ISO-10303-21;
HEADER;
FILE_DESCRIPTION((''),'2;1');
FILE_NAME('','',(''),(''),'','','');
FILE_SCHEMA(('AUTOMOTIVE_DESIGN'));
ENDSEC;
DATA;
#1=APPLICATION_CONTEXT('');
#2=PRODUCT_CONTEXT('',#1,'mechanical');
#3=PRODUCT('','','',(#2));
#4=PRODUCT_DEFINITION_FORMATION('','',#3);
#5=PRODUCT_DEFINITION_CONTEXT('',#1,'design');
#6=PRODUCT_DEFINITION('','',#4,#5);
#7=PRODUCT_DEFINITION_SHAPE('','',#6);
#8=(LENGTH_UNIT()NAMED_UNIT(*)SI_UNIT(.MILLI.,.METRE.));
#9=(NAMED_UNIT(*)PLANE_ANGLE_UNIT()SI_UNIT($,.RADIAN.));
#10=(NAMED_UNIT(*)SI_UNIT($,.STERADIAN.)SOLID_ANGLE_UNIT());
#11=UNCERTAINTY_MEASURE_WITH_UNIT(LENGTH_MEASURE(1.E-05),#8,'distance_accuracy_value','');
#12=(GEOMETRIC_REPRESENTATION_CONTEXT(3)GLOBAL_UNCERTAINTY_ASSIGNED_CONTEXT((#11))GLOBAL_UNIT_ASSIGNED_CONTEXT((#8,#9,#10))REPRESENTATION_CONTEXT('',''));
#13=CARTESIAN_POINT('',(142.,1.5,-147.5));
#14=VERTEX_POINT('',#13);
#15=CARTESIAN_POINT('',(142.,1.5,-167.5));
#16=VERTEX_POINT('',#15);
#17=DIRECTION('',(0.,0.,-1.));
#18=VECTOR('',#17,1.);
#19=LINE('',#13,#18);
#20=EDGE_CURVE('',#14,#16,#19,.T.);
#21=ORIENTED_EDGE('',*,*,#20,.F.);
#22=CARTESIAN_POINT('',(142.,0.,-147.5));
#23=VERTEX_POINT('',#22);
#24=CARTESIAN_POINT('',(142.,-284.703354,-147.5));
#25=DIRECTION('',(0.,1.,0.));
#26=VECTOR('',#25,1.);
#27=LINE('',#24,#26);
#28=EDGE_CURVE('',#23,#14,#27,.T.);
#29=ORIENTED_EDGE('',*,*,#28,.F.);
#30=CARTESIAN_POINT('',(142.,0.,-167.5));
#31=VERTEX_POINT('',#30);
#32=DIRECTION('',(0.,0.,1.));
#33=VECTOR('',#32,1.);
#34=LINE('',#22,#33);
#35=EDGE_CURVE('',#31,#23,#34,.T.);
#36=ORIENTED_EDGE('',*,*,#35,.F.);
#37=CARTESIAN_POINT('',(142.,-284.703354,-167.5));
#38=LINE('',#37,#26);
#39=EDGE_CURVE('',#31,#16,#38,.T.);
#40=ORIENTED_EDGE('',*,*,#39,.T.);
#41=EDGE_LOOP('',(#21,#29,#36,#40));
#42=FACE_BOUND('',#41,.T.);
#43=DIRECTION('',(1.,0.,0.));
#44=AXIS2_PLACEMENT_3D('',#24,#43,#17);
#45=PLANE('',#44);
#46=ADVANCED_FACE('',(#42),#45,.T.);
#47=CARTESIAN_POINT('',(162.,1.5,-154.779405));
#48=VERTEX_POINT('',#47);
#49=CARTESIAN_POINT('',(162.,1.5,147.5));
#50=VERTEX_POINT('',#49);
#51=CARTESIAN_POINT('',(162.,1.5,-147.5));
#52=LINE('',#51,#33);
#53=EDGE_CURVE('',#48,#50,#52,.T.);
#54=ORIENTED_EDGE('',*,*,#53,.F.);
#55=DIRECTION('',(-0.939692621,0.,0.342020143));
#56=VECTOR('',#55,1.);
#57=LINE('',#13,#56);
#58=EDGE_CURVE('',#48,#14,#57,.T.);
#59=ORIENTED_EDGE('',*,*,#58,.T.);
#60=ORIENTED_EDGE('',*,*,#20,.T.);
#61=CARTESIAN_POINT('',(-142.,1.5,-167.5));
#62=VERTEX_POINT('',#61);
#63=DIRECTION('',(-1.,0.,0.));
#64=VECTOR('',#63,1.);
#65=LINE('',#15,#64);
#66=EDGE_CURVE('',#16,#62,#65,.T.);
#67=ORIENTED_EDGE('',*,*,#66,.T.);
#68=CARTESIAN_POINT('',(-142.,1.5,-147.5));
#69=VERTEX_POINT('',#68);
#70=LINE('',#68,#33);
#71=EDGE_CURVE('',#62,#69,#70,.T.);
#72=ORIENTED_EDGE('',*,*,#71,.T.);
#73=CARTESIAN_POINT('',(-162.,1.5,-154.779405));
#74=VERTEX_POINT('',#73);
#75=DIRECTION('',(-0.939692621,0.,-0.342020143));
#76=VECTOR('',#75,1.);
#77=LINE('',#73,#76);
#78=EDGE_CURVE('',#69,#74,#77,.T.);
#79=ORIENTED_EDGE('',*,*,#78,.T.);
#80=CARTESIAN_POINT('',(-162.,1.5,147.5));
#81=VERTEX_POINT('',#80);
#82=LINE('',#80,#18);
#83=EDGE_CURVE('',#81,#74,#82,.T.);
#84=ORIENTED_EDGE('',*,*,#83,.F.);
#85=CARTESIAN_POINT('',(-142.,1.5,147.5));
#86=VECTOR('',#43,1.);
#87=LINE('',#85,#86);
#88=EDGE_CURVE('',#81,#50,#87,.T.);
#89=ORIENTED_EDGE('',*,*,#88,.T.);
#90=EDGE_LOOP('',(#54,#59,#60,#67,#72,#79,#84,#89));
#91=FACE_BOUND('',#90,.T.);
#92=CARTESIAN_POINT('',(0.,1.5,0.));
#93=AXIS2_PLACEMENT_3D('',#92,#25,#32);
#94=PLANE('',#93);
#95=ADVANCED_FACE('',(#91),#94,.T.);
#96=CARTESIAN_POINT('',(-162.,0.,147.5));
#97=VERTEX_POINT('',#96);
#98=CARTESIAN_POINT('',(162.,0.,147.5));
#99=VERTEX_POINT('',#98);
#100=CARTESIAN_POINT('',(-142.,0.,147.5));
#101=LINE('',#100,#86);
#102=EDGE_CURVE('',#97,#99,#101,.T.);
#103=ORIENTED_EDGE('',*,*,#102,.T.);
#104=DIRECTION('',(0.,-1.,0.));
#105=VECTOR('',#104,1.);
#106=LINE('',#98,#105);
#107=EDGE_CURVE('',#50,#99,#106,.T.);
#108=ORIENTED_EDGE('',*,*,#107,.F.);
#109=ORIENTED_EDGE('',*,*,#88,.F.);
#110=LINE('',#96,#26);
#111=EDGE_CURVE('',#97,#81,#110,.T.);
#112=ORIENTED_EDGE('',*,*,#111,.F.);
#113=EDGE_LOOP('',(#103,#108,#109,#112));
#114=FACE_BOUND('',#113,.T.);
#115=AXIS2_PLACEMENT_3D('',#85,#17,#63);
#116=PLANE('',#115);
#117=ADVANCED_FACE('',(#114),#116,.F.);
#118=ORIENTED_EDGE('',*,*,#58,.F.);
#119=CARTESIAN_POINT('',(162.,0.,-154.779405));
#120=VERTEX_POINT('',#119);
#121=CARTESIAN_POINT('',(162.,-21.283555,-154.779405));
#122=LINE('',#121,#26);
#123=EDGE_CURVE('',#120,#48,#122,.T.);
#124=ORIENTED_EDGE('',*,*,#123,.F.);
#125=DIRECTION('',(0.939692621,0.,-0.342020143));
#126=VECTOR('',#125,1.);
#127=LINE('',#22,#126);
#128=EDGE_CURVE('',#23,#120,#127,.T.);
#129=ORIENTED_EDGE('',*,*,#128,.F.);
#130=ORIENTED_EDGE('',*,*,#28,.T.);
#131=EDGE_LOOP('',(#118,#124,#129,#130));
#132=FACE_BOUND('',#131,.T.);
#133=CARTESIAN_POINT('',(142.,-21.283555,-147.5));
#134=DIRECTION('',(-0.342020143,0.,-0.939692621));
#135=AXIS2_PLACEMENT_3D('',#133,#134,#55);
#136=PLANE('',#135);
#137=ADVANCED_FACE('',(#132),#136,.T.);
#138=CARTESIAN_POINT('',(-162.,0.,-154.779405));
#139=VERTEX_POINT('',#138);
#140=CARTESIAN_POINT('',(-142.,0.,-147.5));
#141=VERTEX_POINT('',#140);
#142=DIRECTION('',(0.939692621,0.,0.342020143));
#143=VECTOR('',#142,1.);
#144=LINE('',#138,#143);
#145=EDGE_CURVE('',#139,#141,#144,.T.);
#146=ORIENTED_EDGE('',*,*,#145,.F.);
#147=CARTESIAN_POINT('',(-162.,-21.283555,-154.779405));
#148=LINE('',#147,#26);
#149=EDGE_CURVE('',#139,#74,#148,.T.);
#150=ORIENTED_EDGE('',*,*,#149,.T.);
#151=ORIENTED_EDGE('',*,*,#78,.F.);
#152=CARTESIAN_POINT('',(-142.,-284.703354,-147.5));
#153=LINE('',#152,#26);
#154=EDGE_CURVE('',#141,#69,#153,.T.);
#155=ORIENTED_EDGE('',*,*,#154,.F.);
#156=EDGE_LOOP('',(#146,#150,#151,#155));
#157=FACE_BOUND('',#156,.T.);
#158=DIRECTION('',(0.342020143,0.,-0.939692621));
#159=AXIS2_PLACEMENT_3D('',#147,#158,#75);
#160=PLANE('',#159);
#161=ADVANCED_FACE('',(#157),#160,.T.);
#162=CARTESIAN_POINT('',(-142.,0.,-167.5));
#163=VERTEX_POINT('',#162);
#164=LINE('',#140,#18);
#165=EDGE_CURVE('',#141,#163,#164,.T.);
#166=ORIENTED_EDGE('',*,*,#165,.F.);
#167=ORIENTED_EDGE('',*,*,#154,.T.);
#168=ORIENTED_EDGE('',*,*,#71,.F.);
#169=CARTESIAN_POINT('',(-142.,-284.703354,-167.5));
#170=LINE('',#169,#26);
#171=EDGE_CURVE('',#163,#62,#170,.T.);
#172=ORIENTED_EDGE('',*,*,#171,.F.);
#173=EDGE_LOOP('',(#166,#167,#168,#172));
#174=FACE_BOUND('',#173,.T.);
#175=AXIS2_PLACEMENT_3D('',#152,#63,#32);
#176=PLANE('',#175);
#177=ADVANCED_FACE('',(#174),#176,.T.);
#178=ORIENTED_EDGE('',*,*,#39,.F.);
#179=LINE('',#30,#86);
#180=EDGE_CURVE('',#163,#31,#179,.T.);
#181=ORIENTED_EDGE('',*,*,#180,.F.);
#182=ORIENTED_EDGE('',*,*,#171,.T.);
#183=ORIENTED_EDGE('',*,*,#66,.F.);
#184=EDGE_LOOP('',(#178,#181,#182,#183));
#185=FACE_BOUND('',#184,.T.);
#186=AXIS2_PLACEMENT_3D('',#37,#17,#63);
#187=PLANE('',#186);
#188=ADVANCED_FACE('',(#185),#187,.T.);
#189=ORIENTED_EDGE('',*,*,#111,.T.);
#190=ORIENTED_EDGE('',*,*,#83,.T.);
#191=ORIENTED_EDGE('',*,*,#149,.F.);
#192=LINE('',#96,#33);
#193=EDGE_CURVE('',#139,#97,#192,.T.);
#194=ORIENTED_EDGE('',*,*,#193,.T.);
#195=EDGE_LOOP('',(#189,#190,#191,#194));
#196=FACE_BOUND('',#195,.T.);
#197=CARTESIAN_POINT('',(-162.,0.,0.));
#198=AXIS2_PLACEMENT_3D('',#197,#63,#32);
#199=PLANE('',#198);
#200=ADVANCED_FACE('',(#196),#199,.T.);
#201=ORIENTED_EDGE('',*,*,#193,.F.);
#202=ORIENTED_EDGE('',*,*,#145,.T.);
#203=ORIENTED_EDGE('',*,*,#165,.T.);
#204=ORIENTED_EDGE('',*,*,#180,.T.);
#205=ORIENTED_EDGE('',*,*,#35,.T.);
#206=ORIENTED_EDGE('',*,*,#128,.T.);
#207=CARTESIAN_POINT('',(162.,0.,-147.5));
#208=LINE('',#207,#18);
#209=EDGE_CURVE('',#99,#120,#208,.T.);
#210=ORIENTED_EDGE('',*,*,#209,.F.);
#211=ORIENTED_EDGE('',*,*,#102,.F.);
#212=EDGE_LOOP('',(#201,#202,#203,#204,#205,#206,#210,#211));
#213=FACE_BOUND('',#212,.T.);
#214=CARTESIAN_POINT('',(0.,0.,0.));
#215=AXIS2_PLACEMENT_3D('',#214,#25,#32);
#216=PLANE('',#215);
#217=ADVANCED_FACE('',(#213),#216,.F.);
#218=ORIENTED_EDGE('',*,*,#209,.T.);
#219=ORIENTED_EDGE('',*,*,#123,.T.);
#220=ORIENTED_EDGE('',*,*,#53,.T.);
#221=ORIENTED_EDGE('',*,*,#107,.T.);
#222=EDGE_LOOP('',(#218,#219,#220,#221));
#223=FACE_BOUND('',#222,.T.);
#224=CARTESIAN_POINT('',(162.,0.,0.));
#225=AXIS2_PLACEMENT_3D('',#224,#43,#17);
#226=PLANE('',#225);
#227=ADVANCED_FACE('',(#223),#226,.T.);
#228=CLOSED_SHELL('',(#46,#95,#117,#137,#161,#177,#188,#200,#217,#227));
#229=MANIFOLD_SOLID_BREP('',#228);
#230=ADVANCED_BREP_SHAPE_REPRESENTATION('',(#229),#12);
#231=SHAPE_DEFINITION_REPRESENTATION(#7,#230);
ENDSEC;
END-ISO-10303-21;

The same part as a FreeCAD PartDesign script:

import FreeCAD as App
import Part
import Sketcher
from FreeCAD import Vector
Q = App.Units.Quantity

doc = App.newDocument("Part")
body = doc.addObject("PartDesign::Body", "Body")

sketch1 = body.newObject("Sketcher::SketchObject", "Sketch")
sketch1.AttachmentSupport = (doc.getObject("XZ_Plane"), [""])
sketch1.MapMode = "FlatFace"
sketch1.addGeometry(Part.LineSegment(Vector(-142, -147.5, 0), Vector(-142, 147.5, 0)), False)
sketch1.addGeometry(Part.LineSegment(Vector(-142, 147.5, 0), Vector(142, 147.5, 0)), False)
sketch1.addGeometry(Part.LineSegment(Vector(142, 147.5, 0), Vector(142, -147.5, 0)), False)
sketch1.addGeometry(Part.LineSegment(Vector(142, -147.5, 0), Vector(-142, -147.5, 0)), False)
sketch1.addConstraint(Sketcher.Constraint("Coincident", 0, 2, 1, 1))
sketch1.addConstraint(Sketcher.Constraint("Coincident", 1, 2, 2, 1))
sketch1.addConstraint(Sketcher.Constraint("Coincident", 2, 2, 3, 1))
sketch1.addConstraint(Sketcher.Constraint("Coincident", 3, 2, 0, 1))
sketch1.addConstraint(Sketcher.Constraint("Vertical", 0))
sketch1.addConstraint(Sketcher.Constraint("Horizontal", 1))
sketch1.addConstraint(Sketcher.Constraint("Vertical", 2))
sketch1.addConstraint(Sketcher.Constraint("Horizontal", 3))
sketch1.addConstraint(Sketcher.Constraint("Symmetric", 0, 2, 2, 2, -1, 1))
sketch1.addConstraint(Sketcher.Constraint("DistanceX", 1, 1, 1, 2, 284.0))
sketch1.addConstraint(Sketcher.Constraint("DistanceY", 0, 1, 0, 2, 295.0))
pad1 = body.newObject("PartDesign::Pad", "Pad")
pad1.Profile = sketch1
pad1.Length = 1.5
pad1.Reversed = True

sketch2 = body.newObject("Sketcher::SketchObject", "Sketch001")
sketch2.AttachmentSupport = (doc.getObject("YZ_Plane"), [""])
sketch2.MapMode = "FlatFace"
sketch2.AttachmentOffset = App.Placement(Vector(0, 0, -142), App.Rotation())
sketch2.addGeometry(Part.LineSegment(Vector(1.5, -147.5, 0), Vector(0, -147.5, 0)), False)
sketch2.addGeometry(Part.LineSegment(Vector(0, -147.5, 0), Vector(0, 147.5, 0)), False)
sketch2.addGeometry(Part.LineSegment(Vector(0, 147.5, 0), Vector(1.5, 147.5, 0)), False)
sketch2.addGeometry(Part.LineSegment(Vector(1.5, 147.5, 0), Vector(1.5, -147.5, 0)), False)
sketch2.addConstraint(Sketcher.Constraint("Coincident", 0, 2, 1, 1))
sketch2.addConstraint(Sketcher.Constraint("Coincident", 1, 2, 2, 1))
sketch2.addConstraint(Sketcher.Constraint("Coincident", 2, 2, 3, 1))
sketch2.addConstraint(Sketcher.Constraint("Coincident", 3, 2, 0, 1))
sketch2.addConstraint(Sketcher.Constraint("Horizontal", 0))
sketch2.addConstraint(Sketcher.Constraint("Vertical", 1))
sketch2.addConstraint(Sketcher.Constraint("Horizontal", 2))
sketch2.addConstraint(Sketcher.Constraint("Vertical", 3))
sketch2.addConstraint(Sketcher.Constraint("Symmetric", 0, 2, 1, 2, -1, 1))
sketch2.addConstraint(Sketcher.Constraint("DistanceY", 1, 1, 1, 2, 295.0))
sketch2.addConstraint(Sketcher.Constraint("DistanceX", 0, 2, 0, 1, 1.5))
pad2 = body.newObject("PartDesign::Pad", "Pad001")
pad2.Profile = sketch2
pad2.Length = 20
pad2.Reversed = True

sketch3 = body.newObject("Sketcher::SketchObject", "Sketch002")
sketch3.AttachmentSupport = (doc.getObject("YZ_Plane"), [""])
sketch3.MapMode = "FlatFace"
sketch3.AttachmentOffset = App.Placement(Vector(0, 0, 142), App.Rotation())
sketch3.addGeometry(Part.LineSegment(Vector(1.5, 147.5, 0), Vector(0, 147.5, 0)), False)
sketch3.addGeometry(Part.LineSegment(Vector(0, 147.5, 0), Vector(0, -147.5, 0)), False)
sketch3.addGeometry(Part.LineSegment(Vector(0, -147.5, 0), Vector(1.5, -147.5, 0)), False)
sketch3.addGeometry(Part.LineSegment(Vector(1.5, -147.5, 0), Vector(1.5, 147.5, 0)), False)
sketch3.addConstraint(Sketcher.Constraint("Coincident", 0, 2, 1, 1))
sketch3.addConstraint(Sketcher.Constraint("Coincident", 1, 2, 2, 1))
sketch3.addConstraint(Sketcher.Constraint("Coincident", 2, 2, 3, 1))
sketch3.addConstraint(Sketcher.Constraint("Coincident", 3, 2, 0, 1))
sketch3.addConstraint(Sketcher.Constraint("Horizontal", 0))
sketch3.addConstraint(Sketcher.Constraint("Vertical", 1))
sketch3.addConstraint(Sketcher.Constraint("Horizontal", 2))
sketch3.addConstraint(Sketcher.Constraint("Vertical", 3))
sketch3.addConstraint(Sketcher.Constraint("Symmetric", 0, 2, 1, 2, -1, 1))
sketch3.addConstraint(Sketcher.Constraint("DistanceY", 1, 2, 1, 1, 295.0))
sketch3.addConstraint(Sketcher.Constraint("DistanceX", 0, 2, 0, 1, 1.5))
pad3 = body.newObject("PartDesign::Pad", "Pad002")
pad3.Profile = sketch3
pad3.Length = 20

sketch4 = body.newObject("Sketcher::SketchObject", "Sketch003")
sketch4.AttachmentSupport = (doc.getObject("XZ_Plane"), [""])
sketch4.MapMode = "FlatFace"
sketch4.AttachmentOffset = App.Placement(Vector(0, 0, -1.5), App.Rotation())
sketch4.addGeometry(Part.LineSegment(Vector(-142, -167.5, 0), Vector(-142, -147.5, 0)), False)
sketch4.addGeometry(Part.LineSegment(Vector(-142, -147.5, 0), Vector(142, -147.5, 0)), False)
sketch4.addGeometry(Part.LineSegment(Vector(142, -147.5, 0), Vector(142, -167.5, 0)), False)
sketch4.addGeometry(Part.LineSegment(Vector(142, -167.5, 0), Vector(-142, -167.5, 0)), False)
sketch4.addConstraint(Sketcher.Constraint("Coincident", 0, 2, 1, 1))
sketch4.addConstraint(Sketcher.Constraint("Coincident", 1, 2, 2, 1))
sketch4.addConstraint(Sketcher.Constraint("Coincident", 2, 2, 3, 1))
sketch4.addConstraint(Sketcher.Constraint("Coincident", 3, 2, 0, 1))
sketch4.addConstraint(Sketcher.Constraint("Vertical", 0))
sketch4.addConstraint(Sketcher.Constraint("Horizontal", 1))
sketch4.addConstraint(Sketcher.Constraint("Vertical", 2))
sketch4.addConstraint(Sketcher.Constraint("Horizontal", 3))
sketch4.addConstraint(Sketcher.Constraint("DistanceX", 1, 1, 1, 2, 284.0))
sketch4.addConstraint(Sketcher.Constraint("DistanceY", 0, 1, 0, 2, 20.0))
sketch4.addConstraint(Sketcher.Constraint("DistanceX", 0, 2, -1, 1, 142.0))
sketch4.addConstraint(Sketcher.Constraint("DistanceY", 0, 2, -1, 1, 147.5))
pad4 = body.newObject("PartDesign::Pad", "Pad003")
pad4.Profile = sketch4
pad4.Length = 1.5

sketch5 = body.newObject("Sketcher::SketchObject", "Sketch004")
sketch5.AttachmentSupport = (doc.getObject("XZ_Plane"), [""])
sketch5.MapMode = "FlatFace"
sketch5.AttachmentOffset = App.Placement(Vector(0, 0, -1.5), App.Rotation())
sketch5.addGeometry(Part.LineSegment(Vector(162, -154.779405, 0), Vector(142, -147.5, 0)), False)
sketch5.addGeometry(Part.LineSegment(Vector(142, -147.5, 0), Vector(162, -147.5, 0)), False)
sketch5.addGeometry(Part.LineSegment(Vector(162, -147.5, 0), Vector(162, -154.779405, 0)), False)
sketch5.addGeometry(Part.LineSegment(Vector(-162, -147.5, 0), Vector(-142, -147.5, 0)), False)
sketch5.addGeometry(Part.LineSegment(Vector(-142, -147.5, 0), Vector(-162, -154.779405, 0)), False)
sketch5.addGeometry(Part.LineSegment(Vector(-162, -154.779405, 0), Vector(-162, -147.5, 0)), False)
sketch5.addConstraint(Sketcher.Constraint("Coincident", 0, 2, 1, 1))
sketch5.addConstraint(Sketcher.Constraint("Coincident", 1, 2, 2, 1))
sketch5.addConstraint(Sketcher.Constraint("Coincident", 2, 2, 0, 1))
sketch5.addConstraint(Sketcher.Constraint("Coincident", 3, 2, 4, 1))
sketch5.addConstraint(Sketcher.Constraint("Coincident", 4, 2, 5, 1))
sketch5.addConstraint(Sketcher.Constraint("Coincident", 5, 2, 3, 1))
sketch5.addConstraint(Sketcher.Constraint("Horizontal", 1))
sketch5.addConstraint(Sketcher.Constraint("Vertical", 2))
sketch5.addConstraint(Sketcher.Constraint("Horizontal", 3))
sketch5.addConstraint(Sketcher.Constraint("Vertical", 5))
sketch5.addConstraint(Sketcher.Constraint("Symmetric", 0, 2, 3, 2, -2))
sketch5.addConstraint(Sketcher.Constraint("Symmetric", 2, 2, 4, 2, -2))
sketch5.addConstraint(Sketcher.Constraint("DistanceX", 1, 1, 1, 2, 20.0))
sketch5.addConstraint(Sketcher.Constraint("Angle", 0, Q("160 deg")))
sketch5.addConstraint(Sketcher.Constraint("DistanceX", -1, 1, 0, 2, 142.0))
sketch5.addConstraint(Sketcher.Constraint("DistanceY", 0, 2, -1, 1, 147.5))
pad5 = body.newObject("PartDesign::Pad", "Pad004")
pad5.Profile = sketch5
pad5.Length = 1.5

doc.recompute()
